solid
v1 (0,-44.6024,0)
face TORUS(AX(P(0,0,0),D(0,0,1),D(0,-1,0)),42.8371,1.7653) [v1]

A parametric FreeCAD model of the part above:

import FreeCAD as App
import Part
import Sketcher
Q = App.Units.Quantity

doc = App.newDocument("Part")
body = doc.addObject("PartDesign::Body", "Body")

sketch1 = body.newObject("Sketcher::SketchObject", "Sketch")
sketch1.AttachmentSupport = (doc.getObject("YZ_Plane"), [""])
sketch1.MapMode = "FlatFace"
sketch1.addGeometry(Part.Circle(App.Vector(42.8, 0, 0), App.Vector(0, 0, 1), 1.8), False)
sketch1.addConstraint([
    Sketcher.Constraint("PointOnObject", 0, 3, -1),
    Sketcher.Constraint("Diameter", 0, Q("0.139 in")),
    Sketcher.Constraint("DistanceX", -1, 1, 0, 3, Q("1.6865 in")),
])
revolution = body.newObject("PartDesign::Revolution", "Revolution")
revolution.Profile = sketch1
revolution.ReferenceAxis = (sketch1, ["V_Axis"])
revolution.Angle = 360

doc.recompute()
